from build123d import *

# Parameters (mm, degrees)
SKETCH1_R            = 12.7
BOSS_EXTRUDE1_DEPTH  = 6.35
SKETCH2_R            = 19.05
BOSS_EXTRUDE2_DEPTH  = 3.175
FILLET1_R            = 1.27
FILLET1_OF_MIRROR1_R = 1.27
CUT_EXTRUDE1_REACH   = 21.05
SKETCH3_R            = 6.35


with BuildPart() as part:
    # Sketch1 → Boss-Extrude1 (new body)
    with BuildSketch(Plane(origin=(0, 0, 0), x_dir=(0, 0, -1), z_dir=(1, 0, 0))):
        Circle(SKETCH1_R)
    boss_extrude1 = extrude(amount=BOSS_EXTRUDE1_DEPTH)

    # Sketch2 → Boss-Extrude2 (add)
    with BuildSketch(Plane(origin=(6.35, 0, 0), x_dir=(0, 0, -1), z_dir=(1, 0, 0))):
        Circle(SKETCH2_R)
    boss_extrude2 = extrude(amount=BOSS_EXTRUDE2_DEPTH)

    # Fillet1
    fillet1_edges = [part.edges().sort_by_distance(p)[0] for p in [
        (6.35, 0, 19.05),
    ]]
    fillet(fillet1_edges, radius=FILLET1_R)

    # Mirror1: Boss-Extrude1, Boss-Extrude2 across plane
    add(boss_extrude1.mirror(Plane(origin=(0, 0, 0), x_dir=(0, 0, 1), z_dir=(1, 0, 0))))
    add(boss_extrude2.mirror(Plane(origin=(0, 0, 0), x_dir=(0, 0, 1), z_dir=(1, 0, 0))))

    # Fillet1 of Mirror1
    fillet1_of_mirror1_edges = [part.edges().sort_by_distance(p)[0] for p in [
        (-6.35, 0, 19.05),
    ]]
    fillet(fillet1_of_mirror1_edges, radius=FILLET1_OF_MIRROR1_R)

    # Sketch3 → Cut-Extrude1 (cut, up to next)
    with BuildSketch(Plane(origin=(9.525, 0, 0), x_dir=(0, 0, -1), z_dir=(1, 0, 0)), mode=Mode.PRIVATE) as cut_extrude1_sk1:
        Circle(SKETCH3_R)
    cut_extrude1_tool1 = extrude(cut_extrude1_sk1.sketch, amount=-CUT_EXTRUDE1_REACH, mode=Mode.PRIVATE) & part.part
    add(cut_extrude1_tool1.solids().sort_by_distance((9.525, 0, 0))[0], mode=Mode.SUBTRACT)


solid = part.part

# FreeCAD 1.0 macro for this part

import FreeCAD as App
import Part
import Sketcher

V = App.Vector
Q = App.Units.Quantity


def edges_at(feature, points):
    """Names of the edges that pass closest to the given points."""
    edges = feature.Shape.Edges
    near = lambda p: min(range(len(edges)), key=lambda i: edges[i].distToShape(Part.Vertex(*p))[0])
    return sorted({f"Edge{near(p) + 1}" for p in points})

doc = App.newDocument("Part")
body = doc.addObject("PartDesign::Body", "Body")

sketch1 = body.newObject("Sketcher::SketchObject", "Sketch")
sketch1.AttachmentSupport = (doc.getObject("YZ_Plane"), [""])
sketch1.MapMode = "FlatFace"
sketch1.addGeometry(Part.Circle(V(0, 0, 0), V(0, 0, 1), 12.7), False)
sketch1.addConstraint(Sketcher.Constraint("Coincident", 0, 3, -1, 1))
sketch1.addConstraint(Sketcher.Constraint("Diameter", 0, Q("1 in")))
pad1 = body.newObject("PartDesign::Pad", "Pad")
pad1.Profile = sketch1
pad1.Length = Q("0.25 in")

sketch2 = body.newObject("Sketcher::SketchObject", "Sketch001")
sketch2.AttachmentSupport = (doc.getObject("YZ_Plane"), [""])
sketch2.MapMode = "FlatFace"
sketch2.AttachmentOffset = App.Placement(V(0, 0, 0.25 * 25.4), App.Rotation())
sketch2.addGeometry(Part.Circle(V(0, 0, 0), V(0, 0, 1), 19.05), False)
sketch2.addConstraint(Sketcher.Constraint("Coincident", 0, 3, -1, 1))
sketch2.addConstraint(Sketcher.Constraint("Diameter", 0, Q("1.5 in")))
pad2 = body.newObject("PartDesign::Pad", "Pad001")
pad2.Profile = sketch2
pad2.Length = Q("0.125 in")
doc.recompute()

fillet = body.newObject("PartDesign::Fillet", "Fillet")
fillet.Base = (pad2, edges_at(pad2, [(6.35, 0, 19.05)]))
fillet.Radius = Q("0.05 in")
doc.recompute()

mirrored = body.newObject("PartDesign::Mirrored", "Mirrored")
mirrored.Originals = [pad1, pad2]
mirrored.MirrorPlane = (doc.getObject("YZ_Plane"), [""])
body.Tip = mirrored
doc.recompute()

fillet2 = body.newObject("PartDesign::Fillet", "Fillet001")
fillet2.Base = (mirrored, edges_at(mirrored, [(-6.35, 0, 19.05)]))
fillet2.Radius = Q("0.05 in")

sketch3 = body.newObject("Sketcher::SketchObject", "Sketch002")
sketch3.AttachmentSupport = (doc.getObject("YZ_Plane"), [""])
sketch3.MapMode = "FlatFace"
sketch3.AttachmentOffset = App.Placement(V(0, 0, 0.375 * 25.4), App.Rotation())
sketch3.addGeometry(Part.Circle(V(0, 0, 0), V(0, 0, 1), 6.35), False)
sketch3.addConstraint(Sketcher.Constraint("Coincident", 0, 3, -1, 1))
sketch3.addConstraint(Sketcher.Constraint("Diameter", 0, Q("0.5 in")))
pocket1 = body.newObject("PartDesign::Pocket", "Pocket")
pocket1.Profile = sketch3
pocket1.Type = "UpToFirst"

doc.recompute()
